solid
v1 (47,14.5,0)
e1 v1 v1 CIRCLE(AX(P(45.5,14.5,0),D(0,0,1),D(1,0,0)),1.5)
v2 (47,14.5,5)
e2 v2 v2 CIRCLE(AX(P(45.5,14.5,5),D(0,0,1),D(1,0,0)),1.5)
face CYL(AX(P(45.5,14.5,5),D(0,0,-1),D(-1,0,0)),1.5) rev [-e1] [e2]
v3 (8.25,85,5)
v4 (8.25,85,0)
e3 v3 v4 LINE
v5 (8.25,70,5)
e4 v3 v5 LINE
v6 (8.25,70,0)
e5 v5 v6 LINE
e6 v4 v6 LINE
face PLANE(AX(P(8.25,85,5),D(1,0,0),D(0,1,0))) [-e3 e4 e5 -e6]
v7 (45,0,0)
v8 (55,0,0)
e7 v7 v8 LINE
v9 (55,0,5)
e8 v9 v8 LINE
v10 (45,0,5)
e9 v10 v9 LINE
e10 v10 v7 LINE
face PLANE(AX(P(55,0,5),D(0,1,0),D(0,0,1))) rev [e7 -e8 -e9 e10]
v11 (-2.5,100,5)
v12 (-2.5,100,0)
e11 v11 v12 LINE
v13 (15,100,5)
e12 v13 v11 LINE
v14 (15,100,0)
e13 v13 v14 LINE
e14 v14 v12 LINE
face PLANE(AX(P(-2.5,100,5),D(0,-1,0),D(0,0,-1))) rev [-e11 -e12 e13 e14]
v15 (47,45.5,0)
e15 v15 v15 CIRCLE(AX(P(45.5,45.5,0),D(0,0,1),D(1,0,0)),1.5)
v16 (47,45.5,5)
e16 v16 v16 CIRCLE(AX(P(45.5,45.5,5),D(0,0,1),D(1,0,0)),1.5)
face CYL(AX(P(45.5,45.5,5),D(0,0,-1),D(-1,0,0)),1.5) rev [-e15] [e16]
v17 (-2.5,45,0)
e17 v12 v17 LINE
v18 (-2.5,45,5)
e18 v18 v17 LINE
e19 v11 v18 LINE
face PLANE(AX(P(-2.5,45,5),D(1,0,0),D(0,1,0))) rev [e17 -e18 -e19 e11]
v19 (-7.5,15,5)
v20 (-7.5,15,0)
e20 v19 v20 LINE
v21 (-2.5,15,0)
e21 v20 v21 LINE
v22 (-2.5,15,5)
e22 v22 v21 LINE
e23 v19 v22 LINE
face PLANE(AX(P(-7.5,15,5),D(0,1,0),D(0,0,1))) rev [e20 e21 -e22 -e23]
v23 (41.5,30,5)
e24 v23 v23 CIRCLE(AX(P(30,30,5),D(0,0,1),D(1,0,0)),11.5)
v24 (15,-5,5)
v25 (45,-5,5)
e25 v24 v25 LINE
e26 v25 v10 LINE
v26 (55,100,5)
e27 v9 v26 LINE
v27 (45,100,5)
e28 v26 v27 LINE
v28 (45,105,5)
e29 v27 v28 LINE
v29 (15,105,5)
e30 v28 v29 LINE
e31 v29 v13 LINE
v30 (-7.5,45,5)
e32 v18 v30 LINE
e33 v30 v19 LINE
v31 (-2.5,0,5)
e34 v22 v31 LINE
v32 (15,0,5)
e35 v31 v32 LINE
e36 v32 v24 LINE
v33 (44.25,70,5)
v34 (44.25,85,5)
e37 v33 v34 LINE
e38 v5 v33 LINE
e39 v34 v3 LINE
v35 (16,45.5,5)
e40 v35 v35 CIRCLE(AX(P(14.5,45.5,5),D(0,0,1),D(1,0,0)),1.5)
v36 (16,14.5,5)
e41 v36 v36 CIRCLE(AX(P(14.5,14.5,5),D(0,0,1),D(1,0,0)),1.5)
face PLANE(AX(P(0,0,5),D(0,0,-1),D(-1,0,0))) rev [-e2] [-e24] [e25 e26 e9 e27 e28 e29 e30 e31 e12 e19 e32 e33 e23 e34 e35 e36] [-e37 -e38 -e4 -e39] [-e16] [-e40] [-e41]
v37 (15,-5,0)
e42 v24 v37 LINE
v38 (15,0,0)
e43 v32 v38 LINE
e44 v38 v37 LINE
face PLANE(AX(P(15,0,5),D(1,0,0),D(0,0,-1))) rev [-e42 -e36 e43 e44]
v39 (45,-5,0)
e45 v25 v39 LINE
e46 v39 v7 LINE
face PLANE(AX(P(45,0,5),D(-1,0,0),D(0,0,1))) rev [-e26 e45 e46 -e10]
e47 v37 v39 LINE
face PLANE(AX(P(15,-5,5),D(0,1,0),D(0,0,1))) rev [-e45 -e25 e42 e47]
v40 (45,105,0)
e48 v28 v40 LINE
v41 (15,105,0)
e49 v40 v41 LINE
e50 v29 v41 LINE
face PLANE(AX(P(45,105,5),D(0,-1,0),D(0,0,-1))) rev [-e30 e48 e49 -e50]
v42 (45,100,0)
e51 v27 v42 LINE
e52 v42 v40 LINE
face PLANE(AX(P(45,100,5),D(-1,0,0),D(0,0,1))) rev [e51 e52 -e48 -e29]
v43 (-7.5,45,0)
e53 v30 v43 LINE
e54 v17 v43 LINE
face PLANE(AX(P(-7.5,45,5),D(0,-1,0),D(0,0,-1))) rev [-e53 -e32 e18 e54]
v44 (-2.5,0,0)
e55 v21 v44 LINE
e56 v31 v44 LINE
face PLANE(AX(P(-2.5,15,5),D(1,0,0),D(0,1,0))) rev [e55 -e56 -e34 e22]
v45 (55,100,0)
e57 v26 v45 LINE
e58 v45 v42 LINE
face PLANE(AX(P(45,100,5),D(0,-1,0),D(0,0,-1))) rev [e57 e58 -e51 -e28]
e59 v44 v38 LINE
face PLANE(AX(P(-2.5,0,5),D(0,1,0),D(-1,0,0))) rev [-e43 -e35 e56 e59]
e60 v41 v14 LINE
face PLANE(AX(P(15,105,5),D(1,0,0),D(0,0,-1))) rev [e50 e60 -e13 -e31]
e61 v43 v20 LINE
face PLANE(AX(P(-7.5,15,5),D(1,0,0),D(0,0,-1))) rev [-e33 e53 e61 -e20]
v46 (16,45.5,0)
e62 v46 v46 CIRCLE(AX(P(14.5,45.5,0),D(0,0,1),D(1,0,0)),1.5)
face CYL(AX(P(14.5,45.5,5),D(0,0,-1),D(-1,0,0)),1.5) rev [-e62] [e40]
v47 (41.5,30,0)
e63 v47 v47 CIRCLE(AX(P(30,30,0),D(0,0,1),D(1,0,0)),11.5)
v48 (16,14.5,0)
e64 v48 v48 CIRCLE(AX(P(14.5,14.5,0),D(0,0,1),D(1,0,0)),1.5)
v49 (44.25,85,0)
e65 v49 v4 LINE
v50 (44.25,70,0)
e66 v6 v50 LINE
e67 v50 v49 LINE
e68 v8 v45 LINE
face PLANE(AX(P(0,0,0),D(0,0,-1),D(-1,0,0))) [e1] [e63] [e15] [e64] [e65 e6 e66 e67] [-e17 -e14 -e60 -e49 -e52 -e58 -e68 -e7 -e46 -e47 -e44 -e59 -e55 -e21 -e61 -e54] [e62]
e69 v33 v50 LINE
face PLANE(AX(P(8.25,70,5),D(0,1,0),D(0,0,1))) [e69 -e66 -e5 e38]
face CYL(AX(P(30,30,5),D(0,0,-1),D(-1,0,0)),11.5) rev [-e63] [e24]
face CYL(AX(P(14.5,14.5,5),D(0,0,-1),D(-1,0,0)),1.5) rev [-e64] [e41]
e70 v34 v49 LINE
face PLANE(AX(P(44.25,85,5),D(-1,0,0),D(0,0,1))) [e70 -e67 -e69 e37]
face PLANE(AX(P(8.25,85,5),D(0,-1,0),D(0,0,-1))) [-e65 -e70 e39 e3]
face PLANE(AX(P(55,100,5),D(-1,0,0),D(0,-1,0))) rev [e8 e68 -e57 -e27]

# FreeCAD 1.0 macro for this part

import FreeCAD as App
import Part
import Sketcher

V = App.Vector

doc = App.newDocument("Part")
params = doc.addObject("Spreadsheet::Sheet", "Params")
for row, (alias, value) in enumerate([
    ("sketch1_diameter", "3 mm"),
    ("sketch1_diameter2", "23 mm"),
    ("sketch1_width", "5 mm"),
    ("sketch1_width2", "30 mm"),
    ("sketch1_width3", "10 mm"),
    ("pad1_length", "5 mm"),
], start=1):
    params.set(f"A{row}", alias)
    params.set(f"B{row}", "=" + value)
    params.setAlias(f"B{row}", alias)

body = doc.addObject("PartDesign::Body", "Body")

sketch1 = body.newObject("Sketcher::SketchObject", "Sketch")
sketch1.AttachmentSupport = (doc.getObject("XY_Plane"), [""])
sketch1.MapMode = "FlatFace"
sketch1.addGeometry(Part.LineSegment(V(15, 100, 0), V(-2.5, 100, 0)), False)
sketch1.addGeometry(Part.LineSegment(V(-2.5, 100, 0), V(-2.5, 45, 0)), False)
sketch1.addGeometry(Part.LineSegment(V(-2.5, 45, 0), V(-7.5, 45, 0)), False)
sketch1.addGeometry(Part.LineSegment(V(-7.5, 45, 0), V(-7.5, 15, 0)), False)
sketch1.addGeometry(Part.LineSegment(V(-7.5, 15, 0), V(-2.5, 15, 0)), False)
sketch1.addGeometry(Part.LineSegment(V(-2.5, 15, 0), V(-2.5, 0, 0)), False)
sketch1.addGeometry(Part.LineSegment(V(-2.5, 0, 0), V(15, 0, 0)), False)
sketch1.addGeometry(Part.LineSegment(V(15, 0, 0), V(15, -5, 0)), False)
sketch1.addGeometry(Part.LineSegment(V(15, -5, 0), V(45, -5, 0)), False)
sketch1.addGeometry(Part.LineSegment(V(45, -5, 0), V(45, 0, 0)), False)
sketch1.addGeometry(Part.LineSegment(V(45, 0, 0), V(55, 0, 0)), False)
sketch1.addGeometry(Part.LineSegment(V(55, 0, 0), V(55, 100, 0)), False)
sketch1.addGeometry(Part.LineSegment(V(55, 100, 0), V(45, 100, 0)), False)
sketch1.addGeometry(Part.LineSegment(V(45, 100, 0), V(45, 105, 0)), False)
sketch1.addGeometry(Part.LineSegment(V(45, 105, 0), V(15, 105, 0)), False)
sketch1.addGeometry(Part.LineSegment(V(15, 105, 0), V(15, 100, 0)), False)
sketch1.addGeometry(Part.Circle(V(45.5, 14.5, 0), V(0, 0, 1), 1.5), False)
sketch1.addGeometry(Part.Circle(V(30, 30, 0), V(0, 0, 1), 11.5), False)
sketch1.addGeometry(Part.Circle(V(45.5, 45.5, 0), V(0, 0, 1), 1.5), False)
sketch1.addGeometry(Part.Circle(V(14.5, 14.5, 0), V(0, 0, 1), 1.5), False)
sketch1.addGeometry(Part.Circle(V(14.5, 45.5, 0), V(0, 0, 1), 1.5), False)
sketch1.addGeometry(Part.LineSegment(V(8.2, 70, 0), V(8.2, 85, 0)), False)
sketch1.addGeometry(Part.LineSegment(V(8.2, 85, 0), V(44.2, 85, 0)), False)
sketch1.addGeometry(Part.LineSegment(V(44.2, 85, 0), V(44.2, 70, 0)), False)
sketch1.addGeometry(Part.LineSegment(V(44.2, 70, 0), V(8.2, 70, 0)), False)
sketch1.addConstraint(Sketcher.Constraint("Coincident", 0, 2, 1, 1))
sketch1.addConstraint(Sketcher.Constraint("Coincident", 1, 2, 2, 1))
sketch1.addConstraint(Sketcher.Constraint("Coincident", 2, 2, 3, 1))
sketch1.addConstraint(Sketcher.Constraint("Coincident", 3, 2, 4, 1))
sketch1.addConstraint(Sketcher.Constraint("Coincident", 4, 2, 5, 1))
sketch1.addConstraint(Sketcher.Constraint("Coincident", 5, 2, 6, 1))
sketch1.addConstraint(Sketcher.Constraint("Coincident", 6, 2, 7, 1))
sketch1.addConstraint(Sketcher.Constraint("Coincident", 7, 2, 8, 1))
sketch1.addConstraint(Sketcher.Constraint("Coincident", 8, 2, 9, 1))
sketch1.addConstraint(Sketcher.Constraint("Coincident", 9, 2, 10, 1))
sketch1.addConstraint(Sketcher.Constraint("Coincident", 10, 2, 11, 1))
sketch1.addConstraint(Sketcher.Constraint("Coincident", 11, 2, 12, 1))
sketch1.addConstraint(Sketcher.Constraint("Coincident", 12, 2, 13, 1))
sketch1.addConstraint(Sketcher.Constraint("Coincident", 13, 2, 14, 1))
sketch1.addConstraint(Sketcher.Constraint("Coincident", 14, 2, 15, 1))
sketch1.addConstraint(Sketcher.Constraint("Coincident", 15, 2, 0, 1))
sketch1.addConstraint(Sketcher.Constraint("Coincident", 21, 2, 22, 1))
sketch1.addConstraint(Sketcher.Constraint("Coincident", 22, 2, 23, 1))
sketch1.addConstraint(Sketcher.Constraint("Coincident", 23, 2, 24, 1))
sketch1.addConstraint(Sketcher.Constraint("Coincident", 24, 2, 21, 1))
sketch1.addConstraint(Sketcher.Constraint("Horizontal", 0))
sketch1.addConstraint(Sketcher.Constraint("Vertical", 1))
sketch1.addConstraint(Sketcher.Constraint("Horizontal", 2))
sketch1.addConstraint(Sketcher.Constraint("Vertical", 3))
sketch1.addConstraint(Sketcher.Constraint("Horizontal", 4))
sketch1.addConstraint(Sketcher.Constraint("Vertical", 5))
sketch1.addConstraint(Sketcher.Constraint("Horizontal", 6))
sketch1.addConstraint(Sketcher.Constraint("Vertical", 7))
sketch1.addConstraint(Sketcher.Constraint("Horizontal", 8))
sketch1.addConstraint(Sketcher.Constraint("Vertical", 9))
sketch1.addConstraint(Sketcher.Constraint("Horizontal", 10))
sketch1.addConstraint(Sketcher.Constraint("Vertical", 11))
sketch1.addConstraint(Sketcher.Constraint("Horizontal", 12))
sketch1.addConstraint(Sketcher.Constraint("Vertical", 13))
sketch1.addConstraint(Sketcher.Constraint("Horizontal", 14))
sketch1.addConstraint(Sketcher.Constraint("Vertical", 15))
sketch1.addConstraint(Sketcher.Constraint("Vertical", 21))
sketch1.addConstraint(Sketcher.Constraint("Horizontal", 22))
sketch1.addConstraint(Sketcher.Constraint("Vertical", 23))
sketch1.addConstraint(Sketcher.Constraint("Horizontal", 24))
sketch1.addConstraint(Sketcher.Constraint("Equal", 16, 18))
sketch1.addConstraint(Sketcher.Constraint("Equal", 18, 19))
sketch1.addConstraint(Sketcher.Constraint("Equal", 19, 20))
sketch1.addConstraint(Sketcher.Constraint("PointOnObject", 5, 2, -1))
sketch1.addConstraint(Sketcher.Constraint("PointOnObject", 9, 2, -1))
sketch1.addConstraint(Sketcher.Constraint("Horizontal", 16, 3, 19, 3))
sketch1.addConstraint(Sketcher.Constraint("Horizontal", 18, 3, 20, 3))
sketch1.addConstraint(Sketcher.Constraint("Horizontal", 0, 2, 11, 2))
sketch1.addConstraint(Sketcher.Constraint("Vertical", 16, 3, 18, 3))
sketch1.addConstraint(Sketcher.Constraint("Vertical", 19, 3, 20, 3))
sketch1.addConstraint(Sketcher.Constraint("Vertical", 1, 2, 4, 2))
sketch1.addConstraint(Sketcher.Constraint("Vertical", 9, 2, 12, 2))
sketch1.addConstraint(Sketcher.Constraint("Vertical", 7, 2, 14, 2))
sketch1.addConstraint(Sketcher.Constraint("Equal", 14, 3))
sketch1.addConstraint(Sketcher.Constraint("Equal", 4, 7))
sketch1.addConstraint(Sketcher.Constraint("Equal", 9, 13))
sketch1.addConstraint(Sketcher.Constraint("Equal", 5, 21))
sketch1.addConstraint(Sketcher.Constraint("Diameter", 16, 3.0))
sketch1.addConstraint(Sketcher.Constraint("Diameter", 17, 23.0))
sketch1.addConstraint(Sketcher.Constraint("DistanceX", 2, 2, 2, 1, 5.0))
sketch1.addConstraint(Sketcher.Constraint("DistanceX", 8, 1, 8, 2, 30.0))
sketch1.addConstraint(Sketcher.Constraint("DistanceX", 10, 1, 10, 2, 10.0))
sketch1.addConstraint(Sketcher.Constraint("DistanceX", 22, 1, 22, 2, 36.0))
sketch1.addConstraint(Sketcher.Constraint("DistanceY", 1, 2, 1, 1, 55.0))
sketch1.addConstraint(Sketcher.Constraint("DistanceY", 5, 2, 5, 1, 15.0))
sketch1.addConstraint(Sketcher.Constraint("DistanceX", 0, 2, 0, 1, 17.5))
sketch1.addConstraint(Sketcher.Constraint("DistanceX", -1, 1, 17, 3, 30.0))
sketch1.addConstraint(Sketcher.Constraint("DistanceY", -1, 1, 17, 3, 30.0))
sketch1.addConstraint(Sketcher.Constraint("DistanceX", -1, 1, 6, 2, 15.0))
sketch1.addConstraint(Sketcher.Constraint("DistanceY", -1, 1, 21, 2, 85.0))
sketch1.addConstraint(Sketcher.Constraint("DistanceY", 16, 3, 18, 3, 31.0))
sketch1.addConstraint(Sketcher.Constraint("DistanceX", 19, 3, 16, 3, 31.0))
sketch1.addConstraint(Sketcher.Constraint("DistanceX", 0, 2, 20, 3, 17.0))
sketch1.addConstraint(Sketcher.Constraint("DistanceY", -1, 1, 16, 3, 14.5))
sketch1.addConstraint(Sketcher.Constraint("DistanceX", -1, 1, 21, 2, 8.25))
sketch1.setExpression("Constraints[57]", "Params.sketch1_diameter")
sketch1.setExpression("Constraints[58]", "Params.sketch1_diameter2")
sketch1.setExpression("Constraints[59]", "Params.sketch1_width")
sketch1.setExpression("Constraints[60]", "Params.sketch1_width2")
sketch1.setExpression("Constraints[61]", "Params.sketch1_width3")
pad1 = body.newObject("PartDesign::Pad", "Pad")
pad1.Profile = sketch1
pad1.setExpression("Length", "Params.pad1_length")

doc.recompute()
